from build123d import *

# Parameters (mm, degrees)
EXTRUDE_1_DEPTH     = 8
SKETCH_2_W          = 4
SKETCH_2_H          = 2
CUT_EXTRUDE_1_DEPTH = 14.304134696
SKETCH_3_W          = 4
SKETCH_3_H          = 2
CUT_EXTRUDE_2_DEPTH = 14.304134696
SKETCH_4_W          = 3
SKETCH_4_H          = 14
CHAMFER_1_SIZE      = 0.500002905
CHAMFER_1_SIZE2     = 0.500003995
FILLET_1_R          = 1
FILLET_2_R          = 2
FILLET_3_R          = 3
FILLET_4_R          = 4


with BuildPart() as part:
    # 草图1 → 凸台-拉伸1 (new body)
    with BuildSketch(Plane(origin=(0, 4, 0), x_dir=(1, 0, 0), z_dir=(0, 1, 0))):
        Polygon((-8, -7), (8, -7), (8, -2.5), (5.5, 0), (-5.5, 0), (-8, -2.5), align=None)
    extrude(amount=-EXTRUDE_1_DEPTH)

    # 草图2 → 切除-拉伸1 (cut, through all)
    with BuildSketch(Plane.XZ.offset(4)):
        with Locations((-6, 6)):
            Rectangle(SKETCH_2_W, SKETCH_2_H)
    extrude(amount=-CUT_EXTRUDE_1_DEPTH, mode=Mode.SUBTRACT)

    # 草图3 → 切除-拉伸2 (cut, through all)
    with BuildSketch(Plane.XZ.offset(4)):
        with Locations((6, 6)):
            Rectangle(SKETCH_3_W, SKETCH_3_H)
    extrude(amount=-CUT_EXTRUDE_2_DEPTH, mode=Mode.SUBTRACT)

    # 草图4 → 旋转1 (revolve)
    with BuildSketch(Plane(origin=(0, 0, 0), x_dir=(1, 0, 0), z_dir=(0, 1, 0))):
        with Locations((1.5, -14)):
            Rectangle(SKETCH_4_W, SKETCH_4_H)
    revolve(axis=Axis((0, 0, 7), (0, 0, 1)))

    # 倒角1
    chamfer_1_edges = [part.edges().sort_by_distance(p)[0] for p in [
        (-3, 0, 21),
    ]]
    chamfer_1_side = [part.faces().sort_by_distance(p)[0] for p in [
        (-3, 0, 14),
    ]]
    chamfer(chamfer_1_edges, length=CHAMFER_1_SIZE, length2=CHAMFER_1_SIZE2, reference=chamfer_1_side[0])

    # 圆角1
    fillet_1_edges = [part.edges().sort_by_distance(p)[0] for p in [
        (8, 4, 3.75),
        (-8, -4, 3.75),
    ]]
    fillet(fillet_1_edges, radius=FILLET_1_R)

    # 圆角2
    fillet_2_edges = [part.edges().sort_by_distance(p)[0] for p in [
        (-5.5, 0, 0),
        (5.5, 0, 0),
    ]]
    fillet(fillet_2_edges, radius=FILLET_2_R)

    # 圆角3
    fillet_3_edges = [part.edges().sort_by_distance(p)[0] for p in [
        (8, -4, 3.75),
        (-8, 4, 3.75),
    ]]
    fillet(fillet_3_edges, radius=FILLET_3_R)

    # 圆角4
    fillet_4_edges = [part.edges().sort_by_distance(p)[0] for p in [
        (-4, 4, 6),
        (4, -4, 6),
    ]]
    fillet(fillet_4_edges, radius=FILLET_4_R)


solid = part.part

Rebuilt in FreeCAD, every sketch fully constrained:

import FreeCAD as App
import Part
import Sketcher
from FreeCAD import Vector
Q = App.Units.Quantity


def edges_at(feature, points):
    """Names of the edges that pass closest to the given points."""
    edges = feature.Shape.Edges
    near = lambda p: min(range(len(edges)), key=lambda i: edges[i].distToShape(Part.Vertex(*p))[0])
    return sorted({f"Edge{near(p) + 1}" for p in points})

doc = App.newDocument("Part")
body = doc.addObject("PartDesign::Body", "Body")

# Sketch on XZ plane
sketch1 = body.newObject("Sketcher::SketchObject", "Sketch")
sketch1.AttachmentSupport = (doc.getObject("XZ_Plane"), [""])
sketch1.MapMode = "FlatFace"
sketch1.AttachmentOffset = App.Placement(Vector(0, 0, -4), App.Rotation())
sketch1.addGeometry(Part.LineSegment(Vector(-8, 7, 0), Vector(8, 7, 0)), False)
sketch1.addGeometry(Part.LineSegment(Vector(8, 7, 0), Vector(8, 2.5, 0)), False)
sketch1.addGeometry(Part.LineSegment(Vector(8, 2.5, 0), Vector(5.5, 0, 0)), False)
sketch1.addGeometry(Part.LineSegment(Vector(5.5, 0, 0), Vector(-5.5, 0, 0)), False)
sketch1.addGeometry(Part.LineSegment(Vector(-5.5, 0, 0), Vector(-8, 2.5, 0)), False)
sketch1.addGeometry(Part.LineSegment(Vector(-8, 2.5, 0), Vector(-8, 7, 0)), False)
sketch1.addConstraint(Sketcher.Constraint("Coincident", 0, 2, 1, 1))
sketch1.addConstraint(Sketcher.Constraint("Coincident", 1, 2, 2, 1))
sketch1.addConstraint(Sketcher.Constraint("Coincident", 2, 2, 3, 1))
sketch1.addConstraint(Sketcher.Constraint("Coincident", 3, 2, 4, 1))
sketch1.addConstraint(Sketcher.Constraint("Coincident", 4, 2, 5, 1))
sketch1.addConstraint(Sketcher.Constraint("Coincident", 5, 2, 0, 1))
sketch1.addConstraint(Sketcher.Constraint("Horizontal", 0))
sketch1.addConstraint(Sketcher.Constraint("Vertical", 1))
sketch1.addConstraint(Sketcher.Constraint("Horizontal", 3))
sketch1.addConstraint(Sketcher.Constraint("Vertical", 5))
sketch1.addConstraint(Sketcher.Constraint("Symmetric", 2, 2, 3, 2, -1, 1))
sketch1.addConstraint(Sketcher.Constraint("Symmetric", 1, 2, 4, 2, -2))
sketch1.addConstraint(Sketcher.Constraint("Perpendicular", 2, 4))
sketch1.addConstraint(Sketcher.Constraint("DistanceX", 0, 1, 0, 2, Q("16 mm")))
sketch1.addConstraint(Sketcher.Constraint("DistanceX", 3, 2, 3, 1, Q("11 mm")))
sketch1.addConstraint(Sketcher.Constraint("DistanceY", 1, 2, 1, 1, Q("4.5 mm")))
pad1 = body.newObject("PartDesign::Pad", "Pad")
pad1.Profile = sketch1
pad1.Length = 8

# Sketch on XZ plane
sketch2 = body.newObject("Sketcher::SketchObject", "Sketch001")
sketch2.AttachmentSupport = (doc.getObject("XZ_Plane"), [""])
sketch2.MapMode = "FlatFace"
sketch2.AttachmentOffset = App.Placement(Vector(0, 0, 4), App.Rotation())
sketch2.addGeometry(Part.LineSegment(Vector(-8, 7, 0), Vector(-8, 5, 0)), False)
sketch2.addGeometry(Part.LineSegment(Vector(-8, 5, 0), Vector(-4, 5, 0)), False)
sketch2.addGeometry(Part.LineSegment(Vector(-4, 5, 0), Vector(-4, 7, 0)), False)
sketch2.addGeometry(Part.LineSegment(Vector(-4, 7, 0), Vector(-8, 7, 0)), False)
sketch2.addConstraint(Sketcher.Constraint("Coincident", 0, 2, 1, 1))
sketch2.addConstraint(Sketcher.Constraint("Coincident", 1, 2, 2, 1))
sketch2.addConstraint(Sketcher.Constraint("Coincident", 2, 2, 3, 1))
sketch2.addConstraint(Sketcher.Constraint("Coincident", 3, 2, 0, 1))
sketch2.addConstraint(Sketcher.Constraint("Vertical", 0))
sketch2.addConstraint(Sketcher.Constraint("Horizontal", 1))
sketch2.addConstraint(Sketcher.Constraint("Vertical", 2))
sketch2.addConstraint(Sketcher.Constraint("Horizontal", 3))
sketch2.addConstraint(Sketcher.Constraint("DistanceX", 1, 1, 1, 2, Q("4 mm")))
sketch2.addConstraint(Sketcher.Constraint("DistanceY", 0, 2, 0, 1, Q("2 mm")))
sketch2.addConstraint(Sketcher.Constraint("DistanceX", 0, 2, -1, 1, Q("8 mm")))
sketch2.addConstraint(Sketcher.Constraint("DistanceY", -1, 1, 0, 2, Q("5 mm")))
pocket1 = body.newObject("PartDesign::Pocket", "Pocket")
pocket1.Profile = sketch2
pocket1.Type = "ThroughAll"

# Sketch on XZ plane
sketch3 = body.newObject("Sketcher::SketchObject", "Sketch002")
sketch3.AttachmentSupport = (doc.getObject("XZ_Plane"), [""])
sketch3.MapMode = "FlatFace"
sketch3.AttachmentOffset = App.Placement(Vector(0, 0, 4), App.Rotation())
sketch3.addGeometry(Part.LineSegment(Vector(4, 7, 0), Vector(4, 5, 0)), False)
sketch3.addGeometry(Part.LineSegment(Vector(4, 5, 0), Vector(8, 5, 0)), False)
sketch3.addGeometry(Part.LineSegment(Vector(8, 5, 0), Vector(8, 7, 0)), False)
sketch3.addGeometry(Part.LineSegment(Vector(8, 7, 0), Vector(4, 7, 0)), False)
sketch3.addConstraint(Sketcher.Constraint("Coincident", 0, 2, 1, 1))
sketch3.addConstraint(Sketcher.Constraint("Coincident", 1, 2, 2, 1))
sketch3.addConstraint(Sketcher.Constraint("Coincident", 2, 2, 3, 1))
sketch3.addConstraint(Sketcher.Constraint("Coincident", 3, 2, 0, 1))
sketch3.addConstraint(Sketcher.Constraint("Vertical", 0))
sketch3.addConstraint(Sketcher.Constraint("Horizontal", 1))
sketch3.addConstraint(Sketcher.Constraint("Vertical", 2))
sketch3.addConstraint(Sketcher.Constraint("Horizontal", 3))
sketch3.addConstraint(Sketcher.Constraint("DistanceX", 1, 1, 1, 2, Q("4 mm")))
sketch3.addConstraint(Sketcher.Constraint("DistanceY", 0, 2, 0, 1, Q("2 mm")))
sketch3.addConstraint(Sketcher.Constraint("DistanceX", -1, 1, 0, 2, Q("4 mm")))
sketch3.addConstraint(Sketcher.Constraint("DistanceY", -1, 1, 0, 2, Q("5 mm")))
pocket2 = body.newObject("PartDesign::Pocket", "Pocket001")
pocket2.Profile = sketch3
pocket2.Type = "ThroughAll"

# Sketch on XZ plane
sketch4 = body.newObject("Sketcher::SketchObject", "Sketch003")
sketch4.AttachmentSupport = (doc.getObject("XZ_Plane"), [""])
sketch4.MapMode = "FlatFace"
sketch4.addGeometry(Part.LineSegment(Vector(0, 7, 0), Vector(0, 21, 0)), False)
sketch4.addGeometry(Part.LineSegment(Vector(0, 21, 0), Vector(3, 21, 0)), False)
sketch4.addGeometry(Part.LineSegment(Vector(3, 21, 0), Vector(3, 7, 0)), False)
sketch4.addGeometry(Part.LineSegment(Vector(3, 7, 0), Vector(0, 7, 0)), False)
sketch4.addConstraint(Sketcher.Constraint("Coincident", 0, 2, 1, 1))
sketch4.addConstraint(Sketcher.Constraint("Coincident", 1, 2, 2, 1))
sketch4.addConstraint(Sketcher.Constraint("Coincident", 2, 2, 3, 1))
sketch4.addConstraint(Sketcher.Constraint("Coincident", 3, 2, 0, 1))
sketch4.addConstraint(Sketcher.Constraint("Vertical", 0))
sketch4.addConstraint(Sketcher.Constraint("Horizontal", 1))
sketch4.addConstraint(Sketcher.Constraint("Vertical", 2))
sketch4.addConstraint(Sketcher.Constraint("Horizontal", 3))
sketch4.addConstraint(Sketcher.Constraint("PointOnObject", 0, 2, -2))
sketch4.addConstraint(Sketcher.Constraint("DistanceX", 1, 1, 1, 2, Q("3 mm")))
sketch4.addConstraint(Sketcher.Constraint("DistanceY", 0, 1, 0, 2, Q("14 mm")))
sketch4.addConstraint(Sketcher.Constraint("DistanceY", -1, 1, 0, 2, Q("21 mm")))
revolution = body.newObject("PartDesign::Revolution", "Revolution")
revolution.Profile = sketch4
revolution.ReferenceAxis = (sketch4, ["V_Axis"])
revolution.Angle = 360
doc.recompute()

chamfer = body.newObject("PartDesign::Chamfer", "Chamfer")
chamfer.Base = (revolution, edges_at(revolution, [(-3, 0, 21)]))
chamfer.ChamferType = "Two distances"
chamfer.Size = 0.500003
chamfer.Size2 = 0.500004
doc.recompute()

fillet = body.newObject("PartDesign::Fillet", "Fillet")
fillet.Base = (chamfer, edges_at(chamfer, [(8, 4, 3.75), (-8, -4, 3.75)]))
fillet.Radius = 1
doc.recompute()

fillet2 = body.newObject("PartDesign::Fillet", "Fillet001")
fillet2.Base = (fillet, edges_at(fillet, [(-5.5, 0, 0), (5.5, 0, 0)]))
fillet2.Radius = 2
doc.recompute()

fillet3 = body.newObject("PartDesign::Fillet", "Fillet002")
fillet3.Base = (fillet2, edges_at(fillet2, [(8, -4, 3.75), (-8, 4, 3.75)]))
fillet3.Radius = 3
doc.recompute()

fillet4 = body.newObject("PartDesign::Fillet", "Fillet003")
fillet4.Base = (fillet3, edges_at(fillet3, [(-4, 4, 6), (4, -4, 6)]))
fillet4.Radius = 4

doc.recompute()
